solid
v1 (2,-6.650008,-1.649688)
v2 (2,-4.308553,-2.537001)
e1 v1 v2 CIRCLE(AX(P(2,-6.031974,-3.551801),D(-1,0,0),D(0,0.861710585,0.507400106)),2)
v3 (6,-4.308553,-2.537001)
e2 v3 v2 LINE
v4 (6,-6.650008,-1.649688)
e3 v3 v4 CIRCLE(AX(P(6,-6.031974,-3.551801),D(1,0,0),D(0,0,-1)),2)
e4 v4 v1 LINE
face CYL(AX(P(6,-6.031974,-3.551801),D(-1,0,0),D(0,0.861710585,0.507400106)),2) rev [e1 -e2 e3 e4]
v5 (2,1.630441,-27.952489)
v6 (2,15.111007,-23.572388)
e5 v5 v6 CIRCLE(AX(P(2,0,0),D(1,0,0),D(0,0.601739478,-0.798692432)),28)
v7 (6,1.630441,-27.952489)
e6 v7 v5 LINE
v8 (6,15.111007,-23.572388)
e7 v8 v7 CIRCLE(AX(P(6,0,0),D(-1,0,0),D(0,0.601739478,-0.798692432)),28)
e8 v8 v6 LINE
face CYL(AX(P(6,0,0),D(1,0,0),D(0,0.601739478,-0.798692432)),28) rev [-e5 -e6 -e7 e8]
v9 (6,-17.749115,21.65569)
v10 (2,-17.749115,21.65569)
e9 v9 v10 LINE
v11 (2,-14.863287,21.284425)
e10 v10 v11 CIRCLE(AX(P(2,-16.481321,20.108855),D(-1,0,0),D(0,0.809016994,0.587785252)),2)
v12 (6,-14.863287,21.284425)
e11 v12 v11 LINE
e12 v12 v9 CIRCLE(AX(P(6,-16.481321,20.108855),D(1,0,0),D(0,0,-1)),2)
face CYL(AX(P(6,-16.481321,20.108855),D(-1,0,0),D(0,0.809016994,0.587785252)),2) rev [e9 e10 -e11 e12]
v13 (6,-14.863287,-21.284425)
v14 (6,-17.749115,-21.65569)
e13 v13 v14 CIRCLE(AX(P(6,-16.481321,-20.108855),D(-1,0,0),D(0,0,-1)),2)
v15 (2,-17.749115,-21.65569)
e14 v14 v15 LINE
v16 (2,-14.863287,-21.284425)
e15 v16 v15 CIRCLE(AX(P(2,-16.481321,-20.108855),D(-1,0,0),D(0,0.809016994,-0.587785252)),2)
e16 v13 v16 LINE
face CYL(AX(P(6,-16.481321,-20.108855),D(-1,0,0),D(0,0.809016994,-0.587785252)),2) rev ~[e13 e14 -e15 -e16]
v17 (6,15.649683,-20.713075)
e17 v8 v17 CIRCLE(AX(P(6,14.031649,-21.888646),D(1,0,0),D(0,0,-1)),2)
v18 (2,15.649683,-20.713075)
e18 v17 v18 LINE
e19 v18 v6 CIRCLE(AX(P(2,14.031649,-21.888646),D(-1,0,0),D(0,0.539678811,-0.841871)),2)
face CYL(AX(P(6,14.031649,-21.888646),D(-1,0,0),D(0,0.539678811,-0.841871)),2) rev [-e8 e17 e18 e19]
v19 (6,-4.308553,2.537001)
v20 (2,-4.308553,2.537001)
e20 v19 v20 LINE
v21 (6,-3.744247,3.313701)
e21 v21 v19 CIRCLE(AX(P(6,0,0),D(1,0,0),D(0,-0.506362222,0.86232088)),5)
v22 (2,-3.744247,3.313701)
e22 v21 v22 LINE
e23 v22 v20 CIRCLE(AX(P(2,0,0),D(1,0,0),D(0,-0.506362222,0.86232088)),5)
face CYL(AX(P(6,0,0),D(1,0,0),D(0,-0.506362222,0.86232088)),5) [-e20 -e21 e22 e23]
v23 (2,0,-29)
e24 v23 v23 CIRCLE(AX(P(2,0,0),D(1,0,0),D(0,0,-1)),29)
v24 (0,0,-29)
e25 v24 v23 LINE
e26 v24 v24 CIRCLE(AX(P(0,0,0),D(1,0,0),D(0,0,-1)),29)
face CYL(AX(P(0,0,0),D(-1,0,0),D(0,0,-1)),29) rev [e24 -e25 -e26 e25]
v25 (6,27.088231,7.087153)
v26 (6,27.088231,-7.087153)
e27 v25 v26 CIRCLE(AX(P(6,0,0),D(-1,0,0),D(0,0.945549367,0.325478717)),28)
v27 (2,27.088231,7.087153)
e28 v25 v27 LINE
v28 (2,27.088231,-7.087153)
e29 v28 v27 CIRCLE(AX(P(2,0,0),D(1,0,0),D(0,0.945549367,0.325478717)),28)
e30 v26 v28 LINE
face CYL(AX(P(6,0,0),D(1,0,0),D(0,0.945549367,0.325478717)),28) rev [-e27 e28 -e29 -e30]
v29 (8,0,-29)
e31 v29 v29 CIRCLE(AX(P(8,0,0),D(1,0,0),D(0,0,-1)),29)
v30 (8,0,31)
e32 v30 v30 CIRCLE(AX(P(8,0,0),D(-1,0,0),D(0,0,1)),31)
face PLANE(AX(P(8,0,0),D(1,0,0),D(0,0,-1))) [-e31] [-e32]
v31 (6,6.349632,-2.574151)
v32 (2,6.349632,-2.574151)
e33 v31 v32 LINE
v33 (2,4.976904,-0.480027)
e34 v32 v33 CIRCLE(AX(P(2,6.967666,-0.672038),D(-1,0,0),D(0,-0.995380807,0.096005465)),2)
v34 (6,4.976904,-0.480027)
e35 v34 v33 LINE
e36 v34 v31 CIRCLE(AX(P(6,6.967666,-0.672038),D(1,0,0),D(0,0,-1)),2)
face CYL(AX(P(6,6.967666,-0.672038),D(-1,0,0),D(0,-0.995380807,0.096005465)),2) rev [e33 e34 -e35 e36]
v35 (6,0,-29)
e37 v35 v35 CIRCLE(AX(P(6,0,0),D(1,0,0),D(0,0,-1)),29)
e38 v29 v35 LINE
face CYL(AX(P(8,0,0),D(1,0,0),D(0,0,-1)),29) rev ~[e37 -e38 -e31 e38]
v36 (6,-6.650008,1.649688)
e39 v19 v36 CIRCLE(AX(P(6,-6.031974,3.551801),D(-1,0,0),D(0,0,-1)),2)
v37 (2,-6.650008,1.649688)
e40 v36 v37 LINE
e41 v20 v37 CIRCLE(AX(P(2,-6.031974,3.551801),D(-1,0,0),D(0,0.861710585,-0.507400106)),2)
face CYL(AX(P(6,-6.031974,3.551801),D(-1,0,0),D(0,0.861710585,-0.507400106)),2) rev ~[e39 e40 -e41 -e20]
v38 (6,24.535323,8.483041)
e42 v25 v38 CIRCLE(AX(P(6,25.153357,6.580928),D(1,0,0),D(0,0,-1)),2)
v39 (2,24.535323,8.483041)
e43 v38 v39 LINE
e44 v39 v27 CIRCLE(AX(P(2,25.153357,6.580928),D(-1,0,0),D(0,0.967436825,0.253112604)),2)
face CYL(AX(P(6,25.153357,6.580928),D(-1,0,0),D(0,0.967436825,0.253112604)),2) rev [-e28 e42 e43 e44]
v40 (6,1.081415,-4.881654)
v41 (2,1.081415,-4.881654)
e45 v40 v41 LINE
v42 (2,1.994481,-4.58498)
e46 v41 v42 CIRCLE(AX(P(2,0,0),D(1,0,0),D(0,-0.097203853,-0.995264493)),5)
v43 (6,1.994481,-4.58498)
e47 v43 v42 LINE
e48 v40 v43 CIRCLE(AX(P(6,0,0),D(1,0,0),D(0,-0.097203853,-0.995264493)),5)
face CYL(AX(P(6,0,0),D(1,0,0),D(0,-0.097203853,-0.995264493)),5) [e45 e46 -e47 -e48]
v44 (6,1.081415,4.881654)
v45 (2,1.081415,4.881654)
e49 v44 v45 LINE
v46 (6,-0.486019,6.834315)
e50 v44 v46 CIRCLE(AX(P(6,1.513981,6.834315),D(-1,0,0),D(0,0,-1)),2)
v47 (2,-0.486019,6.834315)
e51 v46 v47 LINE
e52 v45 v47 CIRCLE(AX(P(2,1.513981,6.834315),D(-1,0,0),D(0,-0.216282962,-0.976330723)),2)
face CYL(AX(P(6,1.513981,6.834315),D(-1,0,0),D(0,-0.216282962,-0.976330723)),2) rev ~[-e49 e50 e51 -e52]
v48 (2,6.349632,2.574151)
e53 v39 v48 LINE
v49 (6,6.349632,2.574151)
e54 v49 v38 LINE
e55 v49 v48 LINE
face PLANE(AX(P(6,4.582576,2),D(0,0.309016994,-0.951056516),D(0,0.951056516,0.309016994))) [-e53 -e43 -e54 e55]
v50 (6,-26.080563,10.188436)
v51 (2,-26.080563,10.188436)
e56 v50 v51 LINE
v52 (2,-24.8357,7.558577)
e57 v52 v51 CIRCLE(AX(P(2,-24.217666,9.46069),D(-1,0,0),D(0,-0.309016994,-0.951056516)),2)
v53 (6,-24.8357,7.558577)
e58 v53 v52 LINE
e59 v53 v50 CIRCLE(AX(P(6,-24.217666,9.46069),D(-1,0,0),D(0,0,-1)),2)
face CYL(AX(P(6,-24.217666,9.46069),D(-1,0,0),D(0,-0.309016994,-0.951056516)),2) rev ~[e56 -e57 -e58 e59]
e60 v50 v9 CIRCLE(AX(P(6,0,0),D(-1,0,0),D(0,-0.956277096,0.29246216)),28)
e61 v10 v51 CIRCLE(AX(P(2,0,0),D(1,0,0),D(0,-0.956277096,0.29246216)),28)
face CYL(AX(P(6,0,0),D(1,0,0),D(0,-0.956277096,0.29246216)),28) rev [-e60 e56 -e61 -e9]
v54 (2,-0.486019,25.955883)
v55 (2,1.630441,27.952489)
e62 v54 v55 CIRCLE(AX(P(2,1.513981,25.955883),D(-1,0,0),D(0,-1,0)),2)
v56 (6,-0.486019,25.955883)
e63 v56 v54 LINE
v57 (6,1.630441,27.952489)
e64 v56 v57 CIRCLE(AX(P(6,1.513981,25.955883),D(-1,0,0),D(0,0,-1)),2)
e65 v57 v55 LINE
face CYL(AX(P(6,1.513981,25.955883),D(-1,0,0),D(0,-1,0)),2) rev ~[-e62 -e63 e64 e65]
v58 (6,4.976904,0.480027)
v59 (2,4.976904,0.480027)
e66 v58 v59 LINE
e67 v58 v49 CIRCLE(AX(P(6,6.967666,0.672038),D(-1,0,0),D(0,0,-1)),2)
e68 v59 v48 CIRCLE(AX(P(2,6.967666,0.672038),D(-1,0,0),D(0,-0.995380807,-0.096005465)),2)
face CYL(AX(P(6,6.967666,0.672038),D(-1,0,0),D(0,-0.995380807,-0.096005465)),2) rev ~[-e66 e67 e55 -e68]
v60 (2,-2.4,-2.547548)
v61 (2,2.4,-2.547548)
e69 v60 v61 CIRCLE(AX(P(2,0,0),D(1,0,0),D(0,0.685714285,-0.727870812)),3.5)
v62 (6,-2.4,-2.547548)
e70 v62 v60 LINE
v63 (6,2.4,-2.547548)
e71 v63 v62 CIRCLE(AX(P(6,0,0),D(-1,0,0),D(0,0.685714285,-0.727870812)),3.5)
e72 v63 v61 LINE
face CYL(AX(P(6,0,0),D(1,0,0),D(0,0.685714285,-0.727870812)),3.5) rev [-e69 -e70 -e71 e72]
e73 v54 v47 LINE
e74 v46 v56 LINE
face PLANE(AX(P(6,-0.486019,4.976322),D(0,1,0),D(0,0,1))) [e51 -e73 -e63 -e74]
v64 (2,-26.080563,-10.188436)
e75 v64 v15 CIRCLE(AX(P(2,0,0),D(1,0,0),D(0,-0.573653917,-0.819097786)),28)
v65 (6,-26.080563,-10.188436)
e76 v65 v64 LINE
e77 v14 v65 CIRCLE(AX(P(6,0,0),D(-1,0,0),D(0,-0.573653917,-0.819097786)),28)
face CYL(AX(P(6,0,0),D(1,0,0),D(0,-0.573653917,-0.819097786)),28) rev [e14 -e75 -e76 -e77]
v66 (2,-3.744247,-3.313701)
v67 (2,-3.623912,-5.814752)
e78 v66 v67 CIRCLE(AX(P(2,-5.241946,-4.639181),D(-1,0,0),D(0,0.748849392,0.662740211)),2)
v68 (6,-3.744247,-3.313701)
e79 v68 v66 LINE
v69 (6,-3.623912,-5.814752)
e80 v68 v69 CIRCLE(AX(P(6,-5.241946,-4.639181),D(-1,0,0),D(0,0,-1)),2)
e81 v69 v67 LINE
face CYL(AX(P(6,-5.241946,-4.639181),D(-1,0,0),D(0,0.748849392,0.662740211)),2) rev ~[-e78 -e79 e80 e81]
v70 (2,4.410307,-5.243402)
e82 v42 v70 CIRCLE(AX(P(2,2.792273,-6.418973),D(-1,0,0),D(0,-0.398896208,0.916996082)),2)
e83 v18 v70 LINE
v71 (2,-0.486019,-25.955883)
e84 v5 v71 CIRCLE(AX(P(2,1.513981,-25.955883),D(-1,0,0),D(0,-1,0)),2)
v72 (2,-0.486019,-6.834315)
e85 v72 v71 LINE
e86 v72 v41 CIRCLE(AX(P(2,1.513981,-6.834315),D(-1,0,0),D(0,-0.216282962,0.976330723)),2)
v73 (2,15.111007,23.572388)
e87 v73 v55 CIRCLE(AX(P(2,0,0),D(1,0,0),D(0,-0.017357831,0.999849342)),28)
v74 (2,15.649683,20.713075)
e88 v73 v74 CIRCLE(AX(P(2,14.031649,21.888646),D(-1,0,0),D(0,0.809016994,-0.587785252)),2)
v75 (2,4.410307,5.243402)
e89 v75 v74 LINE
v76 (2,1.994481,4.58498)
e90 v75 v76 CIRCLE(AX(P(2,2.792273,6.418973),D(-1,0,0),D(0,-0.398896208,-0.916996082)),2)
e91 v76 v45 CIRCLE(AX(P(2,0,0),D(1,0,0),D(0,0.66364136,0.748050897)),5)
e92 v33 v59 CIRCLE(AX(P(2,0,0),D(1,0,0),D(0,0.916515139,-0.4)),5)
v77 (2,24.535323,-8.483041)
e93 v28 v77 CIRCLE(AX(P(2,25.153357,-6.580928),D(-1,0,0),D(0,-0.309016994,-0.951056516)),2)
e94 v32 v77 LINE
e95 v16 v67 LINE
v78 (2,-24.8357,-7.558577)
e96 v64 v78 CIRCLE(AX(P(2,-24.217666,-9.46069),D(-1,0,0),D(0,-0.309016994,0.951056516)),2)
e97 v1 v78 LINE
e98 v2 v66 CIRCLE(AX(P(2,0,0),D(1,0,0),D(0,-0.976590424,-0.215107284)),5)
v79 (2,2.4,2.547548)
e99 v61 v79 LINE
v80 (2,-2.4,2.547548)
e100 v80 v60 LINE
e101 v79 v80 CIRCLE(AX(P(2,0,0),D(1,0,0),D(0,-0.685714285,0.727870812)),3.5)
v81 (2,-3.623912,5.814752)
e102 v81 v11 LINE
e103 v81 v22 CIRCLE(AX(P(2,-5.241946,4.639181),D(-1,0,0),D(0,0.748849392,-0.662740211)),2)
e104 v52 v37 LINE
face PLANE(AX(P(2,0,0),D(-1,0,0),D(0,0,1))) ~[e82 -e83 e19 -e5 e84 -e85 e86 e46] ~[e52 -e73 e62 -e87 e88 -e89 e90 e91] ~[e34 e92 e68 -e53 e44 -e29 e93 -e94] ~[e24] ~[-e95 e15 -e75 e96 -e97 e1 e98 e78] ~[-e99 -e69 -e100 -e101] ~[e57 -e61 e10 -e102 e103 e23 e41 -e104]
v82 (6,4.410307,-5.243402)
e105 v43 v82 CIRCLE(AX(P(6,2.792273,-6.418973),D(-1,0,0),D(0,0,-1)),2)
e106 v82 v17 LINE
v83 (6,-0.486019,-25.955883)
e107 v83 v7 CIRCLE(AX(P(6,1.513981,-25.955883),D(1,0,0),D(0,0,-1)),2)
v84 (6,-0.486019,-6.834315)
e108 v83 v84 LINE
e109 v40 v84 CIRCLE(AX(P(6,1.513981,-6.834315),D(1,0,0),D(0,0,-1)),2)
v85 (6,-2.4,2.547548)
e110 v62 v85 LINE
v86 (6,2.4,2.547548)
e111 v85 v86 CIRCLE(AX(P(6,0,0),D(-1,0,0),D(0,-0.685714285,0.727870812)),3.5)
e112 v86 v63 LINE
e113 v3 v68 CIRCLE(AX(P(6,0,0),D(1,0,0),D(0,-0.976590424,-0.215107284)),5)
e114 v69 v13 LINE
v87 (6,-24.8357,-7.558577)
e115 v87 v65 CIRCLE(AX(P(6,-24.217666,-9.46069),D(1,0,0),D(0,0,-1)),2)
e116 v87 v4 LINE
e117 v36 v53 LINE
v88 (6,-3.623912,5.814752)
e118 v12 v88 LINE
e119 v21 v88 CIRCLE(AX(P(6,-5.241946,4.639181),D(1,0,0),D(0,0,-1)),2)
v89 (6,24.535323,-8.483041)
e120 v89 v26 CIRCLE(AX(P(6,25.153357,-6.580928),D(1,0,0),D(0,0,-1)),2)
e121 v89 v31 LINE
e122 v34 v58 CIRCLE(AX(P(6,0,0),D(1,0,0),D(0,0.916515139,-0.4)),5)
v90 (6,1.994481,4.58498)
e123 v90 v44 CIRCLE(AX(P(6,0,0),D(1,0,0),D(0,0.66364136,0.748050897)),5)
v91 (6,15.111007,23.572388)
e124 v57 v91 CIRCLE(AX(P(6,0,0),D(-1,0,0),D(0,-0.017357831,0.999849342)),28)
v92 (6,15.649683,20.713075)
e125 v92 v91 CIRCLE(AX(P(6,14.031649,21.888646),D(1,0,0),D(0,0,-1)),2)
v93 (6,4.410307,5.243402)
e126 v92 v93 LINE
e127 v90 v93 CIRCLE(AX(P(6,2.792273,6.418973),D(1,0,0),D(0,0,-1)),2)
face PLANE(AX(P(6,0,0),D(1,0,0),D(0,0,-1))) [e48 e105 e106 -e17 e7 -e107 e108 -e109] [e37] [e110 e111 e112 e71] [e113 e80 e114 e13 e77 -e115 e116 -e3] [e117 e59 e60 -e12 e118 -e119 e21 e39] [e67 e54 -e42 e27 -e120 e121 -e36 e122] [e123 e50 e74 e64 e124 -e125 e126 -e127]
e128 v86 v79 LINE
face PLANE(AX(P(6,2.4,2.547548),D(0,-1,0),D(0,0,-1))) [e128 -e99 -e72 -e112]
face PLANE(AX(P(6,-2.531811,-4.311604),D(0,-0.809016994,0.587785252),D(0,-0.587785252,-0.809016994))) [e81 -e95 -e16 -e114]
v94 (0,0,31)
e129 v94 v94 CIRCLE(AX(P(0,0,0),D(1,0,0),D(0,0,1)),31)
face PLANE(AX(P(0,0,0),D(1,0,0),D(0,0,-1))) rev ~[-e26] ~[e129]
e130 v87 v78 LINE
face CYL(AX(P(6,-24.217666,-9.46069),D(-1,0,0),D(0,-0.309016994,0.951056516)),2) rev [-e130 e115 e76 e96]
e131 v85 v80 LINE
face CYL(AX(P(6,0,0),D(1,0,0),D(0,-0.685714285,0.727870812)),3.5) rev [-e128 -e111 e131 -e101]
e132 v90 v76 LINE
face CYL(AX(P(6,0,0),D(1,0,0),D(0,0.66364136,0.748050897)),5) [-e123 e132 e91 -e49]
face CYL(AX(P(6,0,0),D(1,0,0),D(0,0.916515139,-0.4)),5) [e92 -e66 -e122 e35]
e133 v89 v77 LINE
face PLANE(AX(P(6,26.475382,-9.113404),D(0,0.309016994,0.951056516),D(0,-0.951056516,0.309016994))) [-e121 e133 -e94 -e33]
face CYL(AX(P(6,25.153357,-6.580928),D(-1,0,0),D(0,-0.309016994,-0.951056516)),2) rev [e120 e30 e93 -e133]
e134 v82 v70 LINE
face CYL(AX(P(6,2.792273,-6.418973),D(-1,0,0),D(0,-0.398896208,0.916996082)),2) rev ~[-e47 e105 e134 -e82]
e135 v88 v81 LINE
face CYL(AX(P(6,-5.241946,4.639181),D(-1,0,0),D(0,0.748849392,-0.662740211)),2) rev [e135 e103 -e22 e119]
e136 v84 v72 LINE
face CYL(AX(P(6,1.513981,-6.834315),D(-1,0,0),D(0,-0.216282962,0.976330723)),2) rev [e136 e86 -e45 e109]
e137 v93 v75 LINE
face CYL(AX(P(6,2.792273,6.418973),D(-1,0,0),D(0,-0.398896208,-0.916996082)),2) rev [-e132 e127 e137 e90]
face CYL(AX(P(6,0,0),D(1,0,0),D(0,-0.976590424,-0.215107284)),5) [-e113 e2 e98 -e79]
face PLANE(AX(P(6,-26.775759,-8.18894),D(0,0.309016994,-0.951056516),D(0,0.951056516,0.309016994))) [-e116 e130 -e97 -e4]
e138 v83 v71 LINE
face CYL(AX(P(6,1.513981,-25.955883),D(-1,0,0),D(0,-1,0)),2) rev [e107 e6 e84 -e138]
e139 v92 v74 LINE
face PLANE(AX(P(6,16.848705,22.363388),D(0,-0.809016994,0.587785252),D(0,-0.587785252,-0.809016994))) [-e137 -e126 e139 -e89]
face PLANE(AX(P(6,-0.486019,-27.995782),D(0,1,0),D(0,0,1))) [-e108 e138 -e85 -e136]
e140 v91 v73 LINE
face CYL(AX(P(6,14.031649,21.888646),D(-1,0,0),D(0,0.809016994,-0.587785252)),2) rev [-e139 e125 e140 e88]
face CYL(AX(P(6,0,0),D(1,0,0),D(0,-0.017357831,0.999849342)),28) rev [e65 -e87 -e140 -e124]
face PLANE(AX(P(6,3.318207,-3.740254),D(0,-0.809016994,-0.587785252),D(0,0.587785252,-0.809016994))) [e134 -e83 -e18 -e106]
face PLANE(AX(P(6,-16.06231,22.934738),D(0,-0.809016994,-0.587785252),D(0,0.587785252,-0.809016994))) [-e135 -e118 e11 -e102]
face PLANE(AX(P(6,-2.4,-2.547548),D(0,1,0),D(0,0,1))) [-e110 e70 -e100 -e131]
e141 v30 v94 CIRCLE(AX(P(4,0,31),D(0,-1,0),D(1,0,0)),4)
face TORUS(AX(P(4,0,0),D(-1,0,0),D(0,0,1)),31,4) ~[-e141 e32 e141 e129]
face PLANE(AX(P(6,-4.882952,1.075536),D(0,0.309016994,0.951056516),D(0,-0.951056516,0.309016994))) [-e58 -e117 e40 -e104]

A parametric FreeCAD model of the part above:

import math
import FreeCAD as App
import Part
import Sketcher
Q = App.Units.Quantity


def edges_at(feature, points):
    """Names of the edges that pass closest to the given points."""
    edges = feature.Shape.Edges
    near = lambda p: min(range(len(edges)), key=lambda i: edges[i].distToShape(Part.Vertex(*p))[0])
    return sorted({f"Edge{near(p) + 1}" for p in points})

doc = App.newDocument("Part")
body = doc.addObject("PartDesign::Body", "Body")

sketch1 = body.newObject("Sketcher::SketchObject", "Sketch")
sketch1.AttachmentSupport = (doc.getObject("YZ_Plane"), [""])
sketch1.MapMode = "FlatFace"
sketch1.addGeometry(Part.Circle(App.Vector(0, 0, 0), App.Vector(0, 0, 1), 31), False)
sketch1.addConstraint(Sketcher.Constraint("Coincident", 0, 3, -1, 1))
sketch1.addConstraint(Sketcher.Constraint("Diameter", 0, Q("62 mm")))
pad1 = body.newObject("PartDesign::Pad", "Pad")
pad1.Profile = sketch1
pad1.Length = 8

sketch2 = body.newObject("Sketcher::SketchObject", "Sketch001")
sketch2.AttachmentSupport = (doc.getObject("YZ_Plane"), [""])
sketch2.MapMode = "FlatFace"
sketch2.AttachmentOffset = App.Placement(App.Vector(0, 0, 8), App.Rotation())
sketch2.addGeometry(Part.Circle(App.Vector(0, 0, 0), App.Vector(0, 0, 1), 29), False)
sketch2.addConstraint(Sketcher.Constraint("Coincident", 0, 3, -1, 1))
sketch2.addConstraint(Sketcher.Constraint("Diameter", 0, Q("58 mm")))
pocket1 = body.newObject("PartDesign::Pocket", "Pocket")
pocket1.Profile = sketch2
pocket1.Length = 2

sketch3 = body.newObject("Sketcher::SketchObject", "Sketch002")
sketch3.AttachmentSupport = (doc.getObject("YZ_Plane"), [""])
sketch3.MapMode = "FlatFace"
sketch3.AttachmentOffset = App.Placement(App.Vector(0, 0, 6), App.Rotation())
sketch3.addGeometry(Part.LineSegment(App.Vector(26.475382, 9.113404, 0), App.Vector(4.582576, 2, 0)), False)
sketch3.addGeometry(Part.ArcOfCircle(Part.Circle(App.Vector(0, 0, 0), App.Vector(0, 0, 1), 5), math.radians(-23.578178), math.radians(23.578178)), False)
sketch3.addGeometry(Part.LineSegment(App.Vector(4.582576, -2, 0), App.Vector(26.475382, -9.113404, 0)), False)
sketch3.addGeometry(Part.ArcOfCircle(Part.Circle(App.Vector(0, 0, 0), App.Vector(0, 0, 1), 28), math.radians(-18.99458), math.radians(18.99458)), False)
sketch3.addConstraint(Sketcher.Constraint("Coincident", 0, 2, 1, 2))
sketch3.addConstraint(Sketcher.Constraint("Coincident", 1, 1, 2, 1))
sketch3.addConstraint(Sketcher.Constraint("Coincident", 2, 2, 3, 1))
sketch3.addConstraint(Sketcher.Constraint("Coincident", 3, 2, 0, 1))
sketch3.addConstraint(Sketcher.Constraint("Coincident", 1, 3, -1, 1))
sketch3.addConstraint(Sketcher.Constraint("Coincident", 3, 3, -1, 1))
sketch3.addConstraint(Sketcher.Constraint("Vertical", 0, 2, 1, 1))
sketch3.addConstraint(Sketcher.Constraint("Vertical", 2, 2, 3, 2))
sketch3.addConstraint(Sketcher.Constraint("Radius", 1, Q("5 mm")))
sketch3.addConstraint(Sketcher.Constraint("Radius", 3, Q("28 mm")))
sketch3.addConstraint(Sketcher.Constraint("Angle", 0, Q("-162 deg")))
sketch3.addConstraint(Sketcher.Constraint("DistanceY", -1, 1, 0, 2, Q("2 mm")))
pocket2 = body.newObject("PartDesign::Pocket", "Pocket001")
pocket2.Profile = sketch3
pocket2.Type = "ThroughAll"
doc.recompute()

fillet = body.newObject("PartDesign::Fillet", "Fillet")
fillet.Base = (pocket2, edges_at(pocket2, [
    (3, 4.583, -2),
    (3, 4.583, 2),
    (3, 26.475, 9.113),
    (3, 26.475, -9.113),
]))
fillet.Radius = 2
doc.recompute()

polarpattern = body.newObject("PartDesign::PolarPattern", "PolarPattern")
polarpattern.Originals = [pocket2]
polarpattern.Axis = (doc.getObject("X_Axis"), [""])
polarpattern.Angle = 360
polarpattern.Occurrences = 5
body.Tip = polarpattern
doc.recompute()

fillet2 = body.newObject("PartDesign::Fillet", "Fillet001")
fillet2.Base = (polarpattern, edges_at(polarpattern, [
    (3, 3.318, 3.74),
    (3, -0.486, 4.976),
    (3, -0.486, 27.996),
    (3, 16.849, 22.363),
    (3, -2.532, 4.312),
    (3, -4.883, 1.076),
    (3, -26.776, 8.189),
    (3, -16.062, 22.935),
    (3, -4.883, -1.076),
    (3, -2.532, -4.312),
    (3, -16.062, -22.935),
    (3, -26.776, -8.189),
    (3, -0.486, -4.976),
    (3, 3.318, -3.74),
    (3, 16.849, -22.363),
    (3, -0.486, -27.996),
]))
fillet2.Radius = 2
doc.recompute()

datumplane = body.newObject("PartDesign::Plane", "DatumPlane")
datumplane.AttachmentSupport = (doc.getObject("YZ_Plane"), [""])
datumplane.MapMode = "FlatFace"
datumplane.AttachmentOffset = App.Placement(App.Vector(0, 0, 4), App.Rotation())
mirrored = body.newObject("PartDesign::Mirrored", "Mirrored")
mirrored.Originals = [pocket1]
mirrored.MirrorPlane = (datumplane, [""])
body.Tip = mirrored

sketch4 = body.newObject("Sketcher::SketchObject", "Sketch003")
sketch4.AttachmentSupport = (doc.getObject("YZ_Plane"), [""])
sketch4.MapMode = "FlatFace"
sketch4.AttachmentOffset = App.Placement(App.Vector(0, 0, 6), App.Rotation())
sketch4.addGeometry(Part.LineSegment(App.Vector(2.4, -2.547548, 0), App.Vector(2.4, 2.547548, 0)), False)
sketch4.addGeometry(Part.ArcOfCircle(Part.Circle(App.Vector(0, 0, 0), App.Vector(0, 0, 1), 3.5), math.radians(46.708192), math.radians(133.291808)), False)
sketch4.addGeometry(Part.LineSegment(App.Vector(-2.4, 2.547548, 0), App.Vector(-2.4, -2.547548, 0)), False)
sketch4.addGeometry(Part.ArcOfCircle(Part.Circle(App.Vector(0, 0, 0), App.Vector(0, 0, 1), 3.5), math.radians(-133.291808), math.radians(-46.708192)), False)
sketch4.addConstraint(Sketcher.Constraint("Coincident", 0, 2, 1, 1))
sketch4.addConstraint(Sketcher.Constraint("Coincident", 1, 2, 2, 1))
sketch4.addConstraint(Sketcher.Constraint("Coincident", 2, 2, 3, 1))
sketch4.addConstraint(Sketcher.Constraint("Coincident", 3, 2, 0, 1))
sketch4.addConstraint(Sketcher.Constraint("Vertical", 0))
sketch4.addConstraint(Sketcher.Constraint("Vertical", 2))
sketch4.addConstraint(Sketcher.Constraint("Coincident", 1, 3, -1, 1))
sketch4.addConstraint(Sketcher.Constraint("Coincident", 3, 3, -1, 1))
sketch4.addConstraint(Sketcher.Constraint("Equal", 1, 3))
sketch4.addConstraint(Sketcher.Constraint("Horizontal", 0, 2, 1, 2))
sketch4.addConstraint(Sketcher.Constraint("Radius", 1, Q("3.5 mm")))
sketch4.addConstraint(Sketcher.Constraint("DistanceX", -1, 1, 0, 2, Q("2.4 mm")))
pocket3 = body.newObject("PartDesign::Pocket", "Pocket002")
pocket3.Profile = sketch4
pocket3.Type = "UpToFirst"

sketch5 = body.newObject("Sketcher::SketchObject", "Sketch004")
sketch5.AttachmentSupport = (doc.getObject("XY_Plane"), [""])
sketch5.MapMode = "FlatFace"
sketch5.addGeometry(Part.LineSegment(App.Vector(0, 31, 0), App.Vector(8, 31, 0)), False)
sketch5.addGeometry(Part.ArcOfCircle(Part.Circle(App.Vector(4, 31, 0), App.Vector(0, 0, 1), 4), math.radians(0), math.radians(180)), False)
sketch5.addConstraint(Sketcher.Constraint("Coincident", 0, 1, 1, 2))
sketch5.addConstraint(Sketcher.Constraint("Coincident", 1, 1, 0, 2))
sketch5.addConstraint(Sketcher.Constraint("Horizontal", 0))
sketch5.addConstraint(Sketcher.Constraint("PointOnObject", 0, 1, -2))
sketch5.addConstraint(Sketcher.Constraint("Horizontal", 1, 3, 0, 1))
sketch5.addConstraint(Sketcher.Constraint("Radius", 1, Q("4 mm")))
sketch5.addConstraint(Sketcher.Constraint("DistanceY", -1, 1, 1, 3, Q("31 mm")))
revolution = body.newObject("PartDesign::Revolution", "Revolution")
revolution.Profile = sketch5
revolution.ReferenceAxis = (sketch5, ["H_Axis"])
revolution.Angle = 360

doc.recompute()
